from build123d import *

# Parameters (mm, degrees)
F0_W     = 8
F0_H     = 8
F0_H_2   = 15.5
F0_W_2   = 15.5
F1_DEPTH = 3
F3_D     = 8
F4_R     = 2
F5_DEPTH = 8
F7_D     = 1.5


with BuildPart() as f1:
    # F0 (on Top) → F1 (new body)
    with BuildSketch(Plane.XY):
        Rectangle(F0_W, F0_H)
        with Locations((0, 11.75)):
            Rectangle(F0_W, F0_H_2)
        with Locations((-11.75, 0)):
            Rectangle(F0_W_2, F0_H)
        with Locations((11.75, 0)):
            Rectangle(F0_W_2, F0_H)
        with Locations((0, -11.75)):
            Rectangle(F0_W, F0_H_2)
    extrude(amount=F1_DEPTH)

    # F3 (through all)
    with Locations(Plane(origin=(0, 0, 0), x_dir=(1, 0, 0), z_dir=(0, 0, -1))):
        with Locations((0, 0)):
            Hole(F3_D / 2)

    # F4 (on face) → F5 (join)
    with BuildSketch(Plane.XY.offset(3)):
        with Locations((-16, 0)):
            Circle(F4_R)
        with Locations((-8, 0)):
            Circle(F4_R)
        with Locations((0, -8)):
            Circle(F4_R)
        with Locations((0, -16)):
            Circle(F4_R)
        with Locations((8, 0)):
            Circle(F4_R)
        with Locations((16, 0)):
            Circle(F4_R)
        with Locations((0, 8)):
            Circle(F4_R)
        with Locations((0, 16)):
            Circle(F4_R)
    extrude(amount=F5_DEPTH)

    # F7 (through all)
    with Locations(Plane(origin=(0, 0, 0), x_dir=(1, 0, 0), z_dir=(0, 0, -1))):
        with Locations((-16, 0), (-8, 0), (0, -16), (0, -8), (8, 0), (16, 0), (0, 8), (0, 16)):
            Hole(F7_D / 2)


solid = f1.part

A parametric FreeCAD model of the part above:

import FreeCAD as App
import Part
import Sketcher


def add_polygon(sketch, points):
    """Adds a closed chain of lines whose ends are joined by coincident constraints."""
    first, n = sketch.GeometryCount, len(points)
    for a, b in zip(points, points[1:] + points[:1]):
        sketch.addGeometry(Part.LineSegment(App.Vector(*a, 0), App.Vector(*b, 0)), False)
    for i in range(n):
        sketch.addConstraint(Sketcher.Constraint("Coincident", first + i, 2, first + (i + 1) % n, 1))

doc = App.newDocument("Part")
body = doc.addObject("PartDesign::Body", "Body")

sketch1 = body.newObject("Sketcher::SketchObject", "Sketch")
sketch1.AttachmentSupport = (doc.getObject("XY_Plane"), [""])
sketch1.MapMode = "FlatFace"
add_polygon(sketch1, [(4, 4), (4, 20), (-4, 20), (-4, 4), (-20, 4), (-20, -4), (-4, -4), (-4, -20), (4, -20), (4, -4), (20, -4), (20, 4)])
sketch1.addConstraint(Sketcher.Constraint("Vertical", 0))
sketch1.addConstraint(Sketcher.Constraint("Horizontal", 1))
sketch1.addConstraint(Sketcher.Constraint("Vertical", 2))
sketch1.addConstraint(Sketcher.Constraint("Horizontal", 3))
sketch1.addConstraint(Sketcher.Constraint("Vertical", 4))
sketch1.addConstraint(Sketcher.Constraint("Horizontal", 5))
sketch1.addConstraint(Sketcher.Constraint("Vertical", 6))
sketch1.addConstraint(Sketcher.Constraint("Horizontal", 7))
sketch1.addConstraint(Sketcher.Constraint("Vertical", 8))
sketch1.addConstraint(Sketcher.Constraint("Horizontal", 9))
sketch1.addConstraint(Sketcher.Constraint("Vertical", 10))
sketch1.addConstraint(Sketcher.Constraint("Horizontal", 11))
sketch1.addConstraint(Sketcher.Constraint("Symmetric", 0, 2, 6, 2, -1, 1))
sketch1.addConstraint(Sketcher.Constraint("Symmetric", 2, 2, 8, 2, -1, 1))
sketch1.addConstraint(Sketcher.Constraint("Symmetric", 4, 2, 10, 2, -1, 1))
sketch1.addConstraint(Sketcher.Constraint("Symmetric", 5, 2, 8, 2, -2))
sketch1.addConstraint(Sketcher.Constraint("Equal", 11, 0))
sketch1.addConstraint(Sketcher.Constraint("Equal", 7, 4))
sketch1.addConstraint(Sketcher.Constraint("DistanceX", 1, 2, 1, 1, 8.0))
sketch1.addConstraint(Sketcher.Constraint("DistanceX", 3, 2, 3, 1, 15.5))
pad1 = body.newObject("PartDesign::Pad", "Pad")
pad1.Profile = sketch1
pad1.Length = 3

sketch2 = body.newObject("Sketcher::SketchObject", "Sketch001")
sketch2.AttachmentSupport = (doc.getObject("XY_Plane"), [""])
sketch2.MapMode = "FlatFace"
sketch2.addGeometry(Part.Circle(App.Vector(0, 0, 0), App.Vector(0, 0, 1), 4), False)
sketch2.addConstraint(Sketcher.Constraint("Coincident", 0, 3, -1, 1))
sketch2.addConstraint(Sketcher.Constraint("Diameter", 0, 8.0))
doc.recompute()
hole = body.newObject("PartDesign::Hole", "Hole")
hole.Profile = sketch2
hole.ThreadType = "None"
hole.Diameter = 8
hole.DepthType = "ThroughAll"
hole.Reversed = True

sketch3 = body.newObject("Sketcher::SketchObject", "Sketch002")
sketch3.AttachmentSupport = (doc.getObject("XY_Plane"), [""])
sketch3.MapMode = "FlatFace"
sketch3.AttachmentOffset = App.Placement(App.Vector(0, 0, 3), App.Rotation())
sketch3.addGeometry(Part.Circle(App.Vector(-16, 0, 0), App.Vector(0, 0, 1), 2), False)
sketch3.addGeometry(Part.Circle(App.Vector(-8, 0, 0), App.Vector(0, 0, 1), 2), False)
sketch3.addGeometry(Part.Circle(App.Vector(0, -8, 0), App.Vector(0, 0, 1), 2), False)
sketch3.addGeometry(Part.Circle(App.Vector(0, -16, 0), App.Vector(0, 0, 1), 2), False)
sketch3.addGeometry(Part.Circle(App.Vector(8, 0, 0), App.Vector(0, 0, 1), 2), False)
sketch3.addGeometry(Part.Circle(App.Vector(16, 0, 0), App.Vector(0, 0, 1), 2), False)
sketch3.addGeometry(Part.Circle(App.Vector(0, 8, 0), App.Vector(0, 0, 1), 2), False)
sketch3.addGeometry(Part.Circle(App.Vector(0, 16, 0), App.Vector(0, 0, 1), 2), False)
sketch3.addConstraint(Sketcher.Constraint("Equal", 0, 1))
sketch3.addConstraint(Sketcher.Constraint("Equal", 1, 2))
sketch3.addConstraint(Sketcher.Constraint("Equal", 2, 3))
sketch3.addConstraint(Sketcher.Constraint("Equal", 3, 4))
sketch3.addConstraint(Sketcher.Constraint("Equal", 4, 5))
sketch3.addConstraint(Sketcher.Constraint("Equal", 5, 6))
sketch3.addConstraint(Sketcher.Constraint("Equal", 6, 7))
sketch3.addConstraint(Sketcher.Constraint("Symmetric", 1, 3, 4, 3, -1, 1))
sketch3.addConstraint(Sketcher.Constraint("Symmetric", 0, 3, 5, 3, -1, 1))
sketch3.addConstraint(Sketcher.Constraint("Symmetric", 2, 3, 6, 3, -1, 1))
sketch3.addConstraint(Sketcher.Constraint("Symmetric", 3, 3, 7, 3, -1, 1))
sketch3.addConstraint(Sketcher.Constraint("PointOnObject", 0, 3, -1))
sketch3.addConstraint(Sketcher.Constraint("PointOnObject", 1, 3, -1))
sketch3.addConstraint(Sketcher.Constraint("PointOnObject", 2, 3, -2))
sketch3.addConstraint(Sketcher.Constraint("PointOnObject", 3, 3, -2))
sketch3.addConstraint(Sketcher.Constraint("Diameter", 0, 4.0))
sketch3.addConstraint(Sketcher.Constraint("DistanceX", 0, 3, -1, 1, 16.0))
sketch3.addConstraint(Sketcher.Constraint("DistanceX", 1, 3, -1, 1, 8.0))
sketch3.addConstraint(Sketcher.Constraint("DistanceY", 2, 3, -1, 1, 8.0))
sketch3.addConstraint(Sketcher.Constraint("DistanceY", 3, 3, -1, 1, 16.0))
pad2 = body.newObject("PartDesign::Pad", "Pad001")
pad2.Profile = sketch3
pad2.Length = 8

sketch4 = body.newObject("Sketcher::SketchObject", "Sketch003")
sketch4.AttachmentSupport = (doc.getObject("XY_Plane"), [""])
sketch4.MapMode = "FlatFace"
sketch4.addGeometry(Part.Circle(App.Vector(-16, 0, 0), App.Vector(0, 0, 1), 0.8), False)
sketch4.addGeometry(Part.Circle(App.Vector(-8, 0, 0), App.Vector(0, 0, 1), 0.8), False)
sketch4.addGeometry(Part.Circle(App.Vector(0, 16, 0), App.Vector(0, 0, 1), 0.8), False)
sketch4.addGeometry(Part.Circle(App.Vector(0, 8, 0), App.Vector(0, 0, 1), 0.8), False)
sketch4.addGeometry(Part.Circle(App.Vector(8, 0, 0), App.Vector(0, 0, 1), 0.8), False)
sketch4.addGeometry(Part.Circle(App.Vector(16, 0, 0), App.Vector(0, 0, 1), 0.8), False)
sketch4.addGeometry(Part.Circle(App.Vector(0, -8, 0), App.Vector(0, 0, 1), 0.8), False)
sketch4.addGeometry(Part.Circle(App.Vector(0, -16, 0), App.Vector(0, 0, 1), 0.8), False)
sketch4.addConstraint(Sketcher.Constraint("Equal", 0, 1))
sketch4.addConstraint(Sketcher.Constraint("Equal", 1, 2))
sketch4.addConstraint(Sketcher.Constraint("Equal", 2, 3))
sketch4.addConstraint(Sketcher.Constraint("Equal", 3, 4))
sketch4.addConstraint(Sketcher.Constraint("Equal", 4, 5))
sketch4.addConstraint(Sketcher.Constraint("Equal", 5, 6))
sketch4.addConstraint(Sketcher.Constraint("Equal", 6, 7))
sketch4.addConstraint(Sketcher.Constraint("Symmetric", 1, 3, 4, 3, -1, 1))
sketch4.addConstraint(Sketcher.Constraint("Symmetric", 0, 3, 5, 3, -1, 1))
sketch4.addConstraint(Sketcher.Constraint("Symmetric", 3, 3, 6, 3, -1, 1))
sketch4.addConstraint(Sketcher.Constraint("Symmetric", 2, 3, 7, 3, -1, 1))
sketch4.addConstraint(Sketcher.Constraint("PointOnObject", 0, 3, -1))
sketch4.addConstraint(Sketcher.Constraint("PointOnObject", 1, 3, -1))
sketch4.addConstraint(Sketcher.Constraint("PointOnObject", 2, 3, -2))
sketch4.addConstraint(Sketcher.Constraint("PointOnObject", 3, 3, -2))
sketch4.addConstraint(Sketcher.Constraint("Diameter", 0, 1.5))
sketch4.addConstraint(Sketcher.Constraint("DistanceX", 0, 3, -1, 1, 16.0))
sketch4.addConstraint(Sketcher.Constraint("DistanceX", 1, 3, -1, 1, 8.0))
sketch4.addConstraint(Sketcher.Constraint("DistanceY", -1, 1, 2, 3, 16.0))
sketch4.addConstraint(Sketcher.Constraint("DistanceY", -1, 1, 3, 3, 8.0))
doc.recompute()
hole2 = body.newObject("PartDesign::Hole", "Hole001")
hole2.Profile = sketch4
hole2.ThreadType = "None"
hole2.Diameter = 1.5
hole2.DepthType = "ThroughAll"
hole2.Reversed = True

doc.recompute()
